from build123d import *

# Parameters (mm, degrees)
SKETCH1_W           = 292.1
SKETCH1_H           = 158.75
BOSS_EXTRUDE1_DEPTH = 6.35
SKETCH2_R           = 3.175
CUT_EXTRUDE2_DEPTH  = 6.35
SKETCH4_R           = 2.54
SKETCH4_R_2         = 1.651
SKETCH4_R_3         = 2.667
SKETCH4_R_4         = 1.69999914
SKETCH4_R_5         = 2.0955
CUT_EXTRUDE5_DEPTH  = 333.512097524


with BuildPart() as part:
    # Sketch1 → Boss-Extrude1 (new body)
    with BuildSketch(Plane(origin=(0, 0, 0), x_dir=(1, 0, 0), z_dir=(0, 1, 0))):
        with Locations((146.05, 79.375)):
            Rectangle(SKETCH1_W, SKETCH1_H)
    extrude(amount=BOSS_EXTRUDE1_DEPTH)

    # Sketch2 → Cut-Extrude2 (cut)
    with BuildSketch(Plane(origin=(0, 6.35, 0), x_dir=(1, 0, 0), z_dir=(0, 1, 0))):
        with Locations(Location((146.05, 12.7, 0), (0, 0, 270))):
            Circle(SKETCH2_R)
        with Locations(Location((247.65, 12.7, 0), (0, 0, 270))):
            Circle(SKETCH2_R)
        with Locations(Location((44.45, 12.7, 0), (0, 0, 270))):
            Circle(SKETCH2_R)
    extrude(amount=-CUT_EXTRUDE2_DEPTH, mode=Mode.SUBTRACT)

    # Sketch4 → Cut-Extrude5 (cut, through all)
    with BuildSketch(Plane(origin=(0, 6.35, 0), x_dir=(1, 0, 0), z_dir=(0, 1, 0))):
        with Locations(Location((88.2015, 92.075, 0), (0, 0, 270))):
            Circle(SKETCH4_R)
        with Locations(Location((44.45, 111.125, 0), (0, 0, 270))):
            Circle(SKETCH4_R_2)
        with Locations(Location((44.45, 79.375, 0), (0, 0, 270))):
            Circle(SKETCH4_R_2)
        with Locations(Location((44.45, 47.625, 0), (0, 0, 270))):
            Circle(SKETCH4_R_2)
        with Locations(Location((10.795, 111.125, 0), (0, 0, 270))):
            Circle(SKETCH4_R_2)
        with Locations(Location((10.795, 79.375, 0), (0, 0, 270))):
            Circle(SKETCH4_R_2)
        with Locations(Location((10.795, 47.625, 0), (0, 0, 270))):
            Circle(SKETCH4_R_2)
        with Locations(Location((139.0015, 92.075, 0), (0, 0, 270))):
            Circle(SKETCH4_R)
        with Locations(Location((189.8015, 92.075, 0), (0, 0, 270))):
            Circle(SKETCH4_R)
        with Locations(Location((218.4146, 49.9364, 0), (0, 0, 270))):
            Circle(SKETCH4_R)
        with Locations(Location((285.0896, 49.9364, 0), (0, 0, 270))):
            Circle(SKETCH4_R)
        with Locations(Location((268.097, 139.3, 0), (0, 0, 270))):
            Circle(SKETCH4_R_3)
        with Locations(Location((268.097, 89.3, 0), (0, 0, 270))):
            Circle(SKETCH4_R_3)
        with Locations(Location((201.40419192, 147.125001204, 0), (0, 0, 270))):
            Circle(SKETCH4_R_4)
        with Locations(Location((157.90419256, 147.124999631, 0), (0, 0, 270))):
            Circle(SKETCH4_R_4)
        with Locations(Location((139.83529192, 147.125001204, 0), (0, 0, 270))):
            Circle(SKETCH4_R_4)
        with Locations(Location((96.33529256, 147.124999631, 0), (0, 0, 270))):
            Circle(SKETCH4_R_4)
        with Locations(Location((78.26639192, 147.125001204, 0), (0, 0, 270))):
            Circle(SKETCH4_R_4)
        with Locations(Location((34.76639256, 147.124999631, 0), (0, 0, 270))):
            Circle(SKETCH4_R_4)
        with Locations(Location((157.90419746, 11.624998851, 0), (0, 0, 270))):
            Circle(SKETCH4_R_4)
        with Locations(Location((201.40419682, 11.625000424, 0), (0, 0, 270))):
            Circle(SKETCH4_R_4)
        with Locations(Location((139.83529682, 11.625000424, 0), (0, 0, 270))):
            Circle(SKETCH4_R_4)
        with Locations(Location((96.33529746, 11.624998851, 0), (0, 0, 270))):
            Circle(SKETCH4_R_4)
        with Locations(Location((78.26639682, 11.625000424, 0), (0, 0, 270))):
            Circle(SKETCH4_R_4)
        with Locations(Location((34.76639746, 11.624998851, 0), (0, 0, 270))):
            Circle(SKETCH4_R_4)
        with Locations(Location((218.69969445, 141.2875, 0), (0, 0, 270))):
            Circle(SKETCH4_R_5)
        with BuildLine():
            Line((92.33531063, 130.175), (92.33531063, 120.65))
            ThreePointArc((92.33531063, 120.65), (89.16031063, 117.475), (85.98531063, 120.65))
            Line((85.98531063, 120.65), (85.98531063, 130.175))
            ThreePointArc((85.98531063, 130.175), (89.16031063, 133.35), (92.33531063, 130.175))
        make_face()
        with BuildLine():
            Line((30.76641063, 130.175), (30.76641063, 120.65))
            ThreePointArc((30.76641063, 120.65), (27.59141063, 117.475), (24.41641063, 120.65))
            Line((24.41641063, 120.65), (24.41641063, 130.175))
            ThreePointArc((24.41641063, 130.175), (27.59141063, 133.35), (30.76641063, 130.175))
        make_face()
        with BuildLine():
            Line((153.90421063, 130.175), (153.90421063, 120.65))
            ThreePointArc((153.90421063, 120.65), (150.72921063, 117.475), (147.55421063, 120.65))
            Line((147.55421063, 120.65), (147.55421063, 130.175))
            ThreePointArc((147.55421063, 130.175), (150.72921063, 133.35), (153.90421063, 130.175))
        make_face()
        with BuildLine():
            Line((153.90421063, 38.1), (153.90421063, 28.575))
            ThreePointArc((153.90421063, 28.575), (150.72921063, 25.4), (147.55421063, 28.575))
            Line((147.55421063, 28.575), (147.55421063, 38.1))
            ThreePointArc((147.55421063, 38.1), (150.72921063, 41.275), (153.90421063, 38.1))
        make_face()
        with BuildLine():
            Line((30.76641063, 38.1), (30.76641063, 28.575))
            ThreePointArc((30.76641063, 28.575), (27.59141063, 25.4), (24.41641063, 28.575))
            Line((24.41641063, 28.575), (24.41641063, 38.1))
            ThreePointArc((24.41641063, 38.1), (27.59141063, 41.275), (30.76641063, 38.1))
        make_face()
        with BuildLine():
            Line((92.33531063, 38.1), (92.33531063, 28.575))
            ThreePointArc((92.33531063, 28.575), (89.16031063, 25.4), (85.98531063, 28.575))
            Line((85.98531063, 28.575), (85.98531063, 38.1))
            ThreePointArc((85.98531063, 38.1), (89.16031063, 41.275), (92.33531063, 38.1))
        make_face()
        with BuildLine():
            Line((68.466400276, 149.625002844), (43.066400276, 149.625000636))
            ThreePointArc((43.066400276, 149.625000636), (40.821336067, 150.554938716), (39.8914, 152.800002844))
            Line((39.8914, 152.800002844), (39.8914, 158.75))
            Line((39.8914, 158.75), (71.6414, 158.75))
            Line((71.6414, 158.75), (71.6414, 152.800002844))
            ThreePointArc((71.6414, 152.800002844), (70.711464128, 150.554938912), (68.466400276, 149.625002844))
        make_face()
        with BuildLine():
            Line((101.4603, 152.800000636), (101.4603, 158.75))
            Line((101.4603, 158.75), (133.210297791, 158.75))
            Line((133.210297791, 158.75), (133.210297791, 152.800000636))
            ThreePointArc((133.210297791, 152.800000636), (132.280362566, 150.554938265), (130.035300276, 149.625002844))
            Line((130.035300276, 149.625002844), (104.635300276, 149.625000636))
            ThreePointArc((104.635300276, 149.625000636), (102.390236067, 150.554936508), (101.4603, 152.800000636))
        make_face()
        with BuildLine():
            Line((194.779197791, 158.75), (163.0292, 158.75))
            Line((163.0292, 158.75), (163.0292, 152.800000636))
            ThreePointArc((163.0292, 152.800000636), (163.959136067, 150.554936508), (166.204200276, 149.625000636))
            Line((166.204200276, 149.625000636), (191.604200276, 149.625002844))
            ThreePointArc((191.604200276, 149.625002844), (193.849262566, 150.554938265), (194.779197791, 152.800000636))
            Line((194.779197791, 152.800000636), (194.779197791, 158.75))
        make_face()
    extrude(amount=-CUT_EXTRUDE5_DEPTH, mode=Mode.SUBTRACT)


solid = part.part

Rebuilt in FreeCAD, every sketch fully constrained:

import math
import FreeCAD as App
import Part
import Sketcher
Q = App.Units.Quantity


def add_polygon(sketch, points):
    """Adds a closed chain of lines whose ends are joined by coincident constraints."""
    first, n = sketch.GeometryCount, len(points)
    for a, b in zip(points, points[1:] + points[:1]):
        sketch.addGeometry(Part.LineSegment(App.Vector(*a, 0), App.Vector(*b, 0)), False)
    for i in range(n):
        sketch.addConstraint(Sketcher.Constraint("Coincident", first + i, 2, first + (i + 1) % n, 1))

doc = App.newDocument("Part")
body = doc.addObject("PartDesign::Body", "Body")

sketch1 = body.newObject("Sketcher::SketchObject", "Sketch")
sketch1.AttachmentSupport = (doc.getObject("XZ_Plane"), [""])
sketch1.MapMode = "FlatFace"
add_polygon(sketch1, [(0, -158.75), (0, 0), (292.1, 0), (292.1, -158.75)])
sketch1.addConstraint(Sketcher.Constraint("Vertical", 0))
sketch1.addConstraint(Sketcher.Constraint("Horizontal", 1))
sketch1.addConstraint(Sketcher.Constraint("Vertical", 2))
sketch1.addConstraint(Sketcher.Constraint("Horizontal", 3))
sketch1.addConstraint(Sketcher.Constraint("Coincident", 0, 2, -1, 1))
sketch1.addConstraint(Sketcher.Constraint("DistanceX", 1, 1, 1, 2, Q("11.5 in")))
sketch1.addConstraint(Sketcher.Constraint("DistanceY", 0, 1, 0, 2, Q("6.25 in")))
pad1 = body.newObject("PartDesign::Pad", "Pad")
pad1.Profile = sketch1
pad1.Length = Q("0.25 in")
pad1.Reversed = True

sketch2 = body.newObject("Sketcher::SketchObject", "Sketch001")
sketch2.AttachmentSupport = (doc.getObject("XZ_Plane"), [""])
sketch2.MapMode = "FlatFace"
sketch2.AttachmentOffset = App.Placement(App.Vector(0, 0, -0.25 * 25.4), App.Rotation())
sketch2.addGeometry(Part.Circle(App.Vector(146.05, -12.7, 0), App.Vector(0, 0, 1), 3.175), False)
sketch2.addGeometry(Part.Circle(App.Vector(247.65, -12.7, 0), App.Vector(0, 0, 1), 3.175), False)
sketch2.addGeometry(Part.Circle(App.Vector(44.45, -12.7, 0), App.Vector(0, 0, 1), 3.175), False)
sketch2.addConstraint(Sketcher.Constraint("Equal", 0, 1))
sketch2.addConstraint(Sketcher.Constraint("Equal", 1, 2))
sketch2.addConstraint(Sketcher.Constraint("Horizontal", 0, 3, 1, 3))
sketch2.addConstraint(Sketcher.Constraint("Horizontal", 1, 3, 2, 3))
sketch2.addConstraint(Sketcher.Constraint("Diameter", 0, Q("0.25 in")))
sketch2.addConstraint(Sketcher.Constraint("DistanceX", 0, 3, 1, 3, Q("4 in")))
sketch2.addConstraint(Sketcher.Constraint("DistanceX", 2, 3, 0, 3, Q("4 in")))
sketch2.addConstraint(Sketcher.Constraint("DistanceY", 0, 3, -1, 1, Q("0.5 in")))
sketch2.addConstraint(Sketcher.Constraint("DistanceX", -1, 1, 0, 3, Q("5.75 in")))
pocket1 = body.newObject("PartDesign::Pocket", "Pocket")
pocket1.Profile = sketch2
pocket1.Length = Q("0.25 in")
pocket1.Reversed = True

sketch3 = body.newObject("Sketcher::SketchObject", "Sketch002")
sketch3.AttachmentSupport = (doc.getObject("XZ_Plane"), [""])
sketch3.MapMode = "FlatFace"
sketch3.AttachmentOffset = App.Placement(App.Vector(0, 0, -0.25 * 25.4), App.Rotation())
sketch3.addGeometry(Part.Circle(App.Vector(88.2015, -92.075, 0), App.Vector(0, 0, 1), 2.54), False)
sketch3.addGeometry(Part.Circle(App.Vector(44.45, -111.125, 0), App.Vector(0, 0, 1), 1.651), False)
sketch3.addGeometry(Part.Circle(App.Vector(44.45, -79.375, 0), App.Vector(0, 0, 1), 1.651), False)
sketch3.addGeometry(Part.Circle(App.Vector(44.45, -47.625, 0), App.Vector(0, 0, 1), 1.651), False)
sketch3.addGeometry(Part.Circle(App.Vector(10.795, -111.125, 0), App.Vector(0, 0, 1), 1.651), False)
sketch3.addGeometry(Part.Circle(App.Vector(10.795, -79.375, 0), App.Vector(0, 0, 1), 1.651), False)
sketch3.addGeometry(Part.Circle(App.Vector(10.795, -47.625, 0), App.Vector(0, 0, 1), 1.651), False)
sketch3.addGeometry(Part.Circle(App.Vector(139.0015, -92.075, 0), App.Vector(0, 0, 1), 2.54), False)
sketch3.addGeometry(Part.Circle(App.Vector(189.8015, -92.075, 0), App.Vector(0, 0, 1), 2.54), False)
sketch3.addGeometry(Part.Circle(App.Vector(218.4146, -49.9364, 0), App.Vector(0, 0, 1), 2.54), False)
sketch3.addGeometry(Part.Circle(App.Vector(285.0896, -49.9364, 0), App.Vector(0, 0, 1), 2.54), False)
sketch3.addGeometry(Part.Circle(App.Vector(268.097, -139.3, 0), App.Vector(0, 0, 1), 2.667), False)
sketch3.addGeometry(Part.Circle(App.Vector(268.097, -89.3, 0), App.Vector(0, 0, 1), 2.667), False)
sketch3.addGeometry(Part.Circle(App.Vector(201.404192, -147.125001, 0), App.Vector(0, 0, 1), 1.699999), False)
sketch3.addGeometry(Part.Circle(App.Vector(157.904193, -147.125, 0), App.Vector(0, 0, 1), 1.699999), False)
sketch3.addGeometry(Part.Circle(App.Vector(139.835292, -147.125001, 0), App.Vector(0, 0, 1), 1.699999), False)
sketch3.addGeometry(Part.Circle(App.Vector(96.335293, -147.125, 0), App.Vector(0, 0, 1), 1.699999), False)
sketch3.addGeometry(Part.Circle(App.Vector(78.266392, -147.125001, 0), App.Vector(0, 0, 1), 1.699999), False)
sketch3.addGeometry(Part.Circle(App.Vector(34.766393, -147.125, 0), App.Vector(0, 0, 1), 1.699999), False)
sketch3.addGeometry(Part.Circle(App.Vector(157.904197, -11.624999, 0), App.Vector(0, 0, 1), 1.699999), False)
sketch3.addGeometry(Part.Circle(App.Vector(201.404197, -11.625, 0), App.Vector(0, 0, 1), 1.699999), False)
sketch3.addGeometry(Part.Circle(App.Vector(139.835297, -11.625, 0), App.Vector(0, 0, 1), 1.699999), False)
sketch3.addGeometry(Part.Circle(App.Vector(96.335297, -11.624999, 0), App.Vector(0, 0, 1), 1.699999), False)
sketch3.addGeometry(Part.Circle(App.Vector(78.266397, -11.625, 0), App.Vector(0, 0, 1), 1.699999), False)
sketch3.addGeometry(Part.Circle(App.Vector(34.766397, -11.624999, 0), App.Vector(0, 0, 1), 1.699999), False)
sketch3.addGeometry(Part.Circle(App.Vector(218.699694, -141.2875, 0), App.Vector(0, 0, 1), 2.0955), False)
sketch3.addGeometry(Part.LineSegment(App.Vector(92.335311, -120.65, 0), App.Vector(92.335311, -130.175, 0)), False)
sketch3.addGeometry(Part.ArcOfCircle(Part.Circle(App.Vector(89.160311, -130.175, 0), App.Vector(0, 0, 1), 3.175), math.radians(180), math.radians(360)), False)
sketch3.addGeometry(Part.LineSegment(App.Vector(85.985311, -130.175, 0), App.Vector(85.985311, -120.65, 0)), False)
sketch3.addGeometry(Part.ArcOfCircle(Part.Circle(App.Vector(89.160311, -120.65, 0), App.Vector(0, 0, 1), 3.175), math.radians(0), math.radians(180)), False)
sketch3.addGeometry(Part.LineSegment(App.Vector(30.766411, -120.65, 0), App.Vector(30.766411, -130.175, 0)), False)
sketch3.addGeometry(Part.ArcOfCircle(Part.Circle(App.Vector(27.591411, -130.175, 0), App.Vector(0, 0, 1), 3.175), math.radians(180), math.radians(360)), False)
sketch3.addGeometry(Part.LineSegment(App.Vector(24.416411, -130.175, 0), App.Vector(24.416411, -120.65, 0)), False)
sketch3.addGeometry(Part.ArcOfCircle(Part.Circle(App.Vector(27.591411, -120.65, 0), App.Vector(0, 0, 1), 3.175), math.radians(0), math.radians(180)), False)
sketch3.addGeometry(Part.LineSegment(App.Vector(153.904211, -120.65, 0), App.Vector(153.904211, -130.175, 0)), False)
sketch3.addGeometry(Part.ArcOfCircle(Part.Circle(App.Vector(150.729211, -130.175, 0), App.Vector(0, 0, 1), 3.175), math.radians(180), math.radians(360)), False)
sketch3.addGeometry(Part.LineSegment(App.Vector(147.554211, -130.175, 0), App.Vector(147.554211, -120.65, 0)), False)
sketch3.addGeometry(Part.ArcOfCircle(Part.Circle(App.Vector(150.729211, -120.65, 0), App.Vector(0, 0, 1), 3.175), math.radians(0), math.radians(180)), False)
sketch3.addGeometry(Part.LineSegment(App.Vector(153.904211, -28.575, 0), App.Vector(153.904211, -38.1, 0)), False)
sketch3.addGeometry(Part.ArcOfCircle(Part.Circle(App.Vector(150.729211, -38.1, 0), App.Vector(0, 0, 1), 3.175), math.radians(180), math.radians(360)), False)
sketch3.addGeometry(Part.LineSegment(App.Vector(147.554211, -38.1, 0), App.Vector(147.554211, -28.575, 0)), False)
sketch3.addGeometry(Part.ArcOfCircle(Part.Circle(App.Vector(150.729211, -28.575, 0), App.Vector(0, 0, 1), 3.175), math.radians(0), math.radians(180)), False)
sketch3.addGeometry(Part.LineSegment(App.Vector(30.766411, -28.575, 0), App.Vector(30.766411, -38.1, 0)), False)
sketch3.addGeometry(Part.ArcOfCircle(Part.Circle(App.Vector(27.591411, -38.1, 0), App.Vector(0, 0, 1), 3.175), math.radians(180), math.radians(360)), False)
sketch3.addGeometry(Part.LineSegment(App.Vector(24.416411, -38.1, 0), App.Vector(24.416411, -28.575, 0)), False)
sketch3.addGeometry(Part.ArcOfCircle(Part.Circle(App.Vector(27.591411, -28.575, 0), App.Vector(0, 0, 1), 3.175), math.radians(0), math.radians(180)), False)
sketch3.addGeometry(Part.LineSegment(App.Vector(92.335311, -28.575, 0), App.Vector(92.335311, -38.1, 0)), False)
sketch3.addGeometry(Part.ArcOfCircle(Part.Circle(App.Vector(89.160311, -38.1, 0), App.Vector(0, 0, 1), 3.175), math.radians(180), math.radians(360)), False)
sketch3.addGeometry(Part.LineSegment(App.Vector(85.985311, -38.1, 0), App.Vector(85.985311, -28.575, 0)), False)
sketch3.addGeometry(Part.ArcOfCircle(Part.Circle(App.Vector(89.160311, -28.575, 0), App.Vector(0, 0, 1), 3.175), math.radians(0), math.radians(180)), False)
sketch3.addGeometry(Part.LineSegment(App.Vector(43.0664, -149.625001, 0), App.Vector(68.4664, -149.625003, 0)), False)
sketch3.addGeometry(Part.ArcOfCircle(Part.Circle(App.Vector(68.4664, -152.800003, 0), App.Vector(0, 0, 1), 3.175), math.radians(0), math.radians(89.999995)), False)
sketch3.addGeometry(Part.LineSegment(App.Vector(71.6414, -152.800003, 0), App.Vector(71.6414, -158.75, 0)), False)
sketch3.addGeometry(Part.LineSegment(App.Vector(71.6414, -158.75, 0), App.Vector(39.8914, -158.75, 0)), False)
sketch3.addGeometry(Part.LineSegment(App.Vector(39.8914, -158.75, 0), App.Vector(39.8914, -152.800003, 0)), False)
sketch3.addGeometry(Part.ArcOfCircle(Part.Circle(App.Vector(43.066404, -152.800004, 0), App.Vector(0, 0, 1), 3.175004), math.radians(90.000063), math.radians(179.999972)), False)
sketch3.addGeometry(Part.LineSegment(App.Vector(101.4603, -158.75, 0), App.Vector(101.4603, -152.800001, 0)), False)
sketch3.addGeometry(Part.ArcOfCircle(Part.Circle(App.Vector(104.6353, -152.800001, 0), App.Vector(0, 0, 1), 3.175), math.radians(89.999995), math.radians(180)), False)
sketch3.addGeometry(Part.LineSegment(App.Vector(104.6353, -149.625001, 0), App.Vector(130.0353, -149.625003, 0)), False)
sketch3.addGeometry(Part.ArcOfCircle(Part.Circle(App.Vector(130.0353, -152.800001, 0), App.Vector(0, 0, 1), 3.174998), math.radians(0), math.radians(89.999995)), False)
sketch3.addGeometry(Part.LineSegment(App.Vector(133.210298, -152.800001, 0), App.Vector(133.210298, -158.75, 0)), False)
sketch3.addGeometry(Part.LineSegment(App.Vector(133.210298, -158.75, 0), App.Vector(101.4603, -158.75, 0)), False)
sketch3.addGeometry(Part.LineSegment(App.Vector(194.779198, -158.75, 0), App.Vector(163.0292, -158.75, 0)), False)
sketch3.addGeometry(Part.LineSegment(App.Vector(163.0292, -158.75, 0), App.Vector(163.0292, -152.800001, 0)), False)
sketch3.addGeometry(Part.ArcOfCircle(Part.Circle(App.Vector(166.2042, -152.800001, 0), App.Vector(0, 0, 1), 3.175), math.radians(89.999995), math.radians(180)), False)
sketch3.addGeometry(Part.LineSegment(App.Vector(166.2042, -149.625001, 0), App.Vector(191.6042, -149.625003, 0)), False)
sketch3.addGeometry(Part.ArcOfCircle(Part.Circle(App.Vector(191.6042, -152.800001, 0), App.Vector(0, 0, 1), 3.174998), math.radians(0), math.radians(89.999995)), False)
sketch3.addGeometry(Part.LineSegment(App.Vector(194.779198, -152.800001, 0), App.Vector(194.779198, -158.75, 0)), False)
sketch3.addConstraint(Sketcher.Constraint("Tangent", 26, 2, 27, 2))
sketch3.addConstraint(Sketcher.Constraint("Tangent", 27, 1, 28, 1))
sketch3.addConstraint(Sketcher.Constraint("Tangent", 28, 2, 29, 2))
sketch3.addConstraint(Sketcher.Constraint("Tangent", 29, 1, 26, 1))
sketch3.addConstraint(Sketcher.Constraint("Tangent", 30, 2, 31, 2))
sketch3.addConstraint(Sketcher.Constraint("Tangent", 31, 1, 32, 1))
sketch3.addConstraint(Sketcher.Constraint("Tangent", 32, 2, 33, 2))
sketch3.addConstraint(Sketcher.Constraint("Tangent", 33, 1, 30, 1))
sketch3.addConstraint(Sketcher.Constraint("Tangent", 34, 2, 35, 2))
sketch3.addConstraint(Sketcher.Constraint("Tangent", 35, 1, 36, 1))
sketch3.addConstraint(Sketcher.Constraint("Tangent", 36, 2, 37, 2))
sketch3.addConstraint(Sketcher.Constraint("Tangent", 37, 1, 34, 1))
sketch3.addConstraint(Sketcher.Constraint("Tangent", 38, 2, 39, 2))
sketch3.addConstraint(Sketcher.Constraint("Tangent", 39, 1, 40, 1))
sketch3.addConstraint(Sketcher.Constraint("Tangent", 40, 2, 41, 2))
sketch3.addConstraint(Sketcher.Constraint("Tangent", 41, 1, 38, 1))
sketch3.addConstraint(Sketcher.Constraint("Tangent", 42, 2, 43, 2))
sketch3.addConstraint(Sketcher.Constraint("Tangent", 43, 1, 44, 1))
sketch3.addConstraint(Sketcher.Constraint("Tangent", 44, 2, 45, 2))
sketch3.addConstraint(Sketcher.Constraint("Tangent", 45, 1, 42, 1))
sketch3.addConstraint(Sketcher.Constraint("Tangent", 46, 2, 47, 2))
sketch3.addConstraint(Sketcher.Constraint("Tangent", 47, 1, 48, 1))
sketch3.addConstraint(Sketcher.Constraint("Tangent", 48, 2, 49, 2))
sketch3.addConstraint(Sketcher.Constraint("Tangent", 49, 1, 46, 1))
sketch3.addConstraint(Sketcher.Constraint("Tangent", 50, 2, 51, 2))
sketch3.addConstraint(Sketcher.Constraint("Tangent", 51, 1, 52, 1))
sketch3.addConstraint(Sketcher.Constraint("Coincident", 52, 2, 53, 1))
sketch3.addConstraint(Sketcher.Constraint("Coincident", 53, 2, 54, 1))
sketch3.addConstraint(Sketcher.Constraint("Tangent", 54, 2, 55, 2))
sketch3.addConstraint(Sketcher.Constraint("Tangent", 55, 1, 50, 1))
sketch3.addConstraint(Sketcher.Constraint("Tangent", 56, 2, 57, 2))
sketch3.addConstraint(Sketcher.Constraint("Tangent", 57, 1, 58, 1))
sketch3.addConstraint(Sketcher.Constraint("Tangent", 58, 2, 59, 2))
sketch3.addConstraint(Sketcher.Constraint("Tangent", 59, 1, 60, 1))
sketch3.addConstraint(Sketcher.Constraint("Coincident", 60, 2, 61, 1))
sketch3.addConstraint(Sketcher.Constraint("Coincident", 61, 2, 56, 1))
sketch3.addConstraint(Sketcher.Constraint("Coincident", 62, 2, 63, 1))
sketch3.addConstraint(Sketcher.Constraint("Tangent", 63, 2, 64, 2))
sketch3.addConstraint(Sketcher.Constraint("Tangent", 64, 1, 65, 1))
sketch3.addConstraint(Sketcher.Constraint("Tangent", 65, 2, 66, 2))
sketch3.addConstraint(Sketcher.Constraint("Tangent", 66, 1, 67, 1))
sketch3.addConstraint(Sketcher.Constraint("Coincident", 67, 2, 62, 1))
sketch3.addConstraint(Sketcher.Constraint("Vertical", 26))
sketch3.addConstraint(Sketcher.Constraint("Vertical", 28))
sketch3.addConstraint(Sketcher.Constraint("Vertical", 30))
sketch3.addConstraint(Sketcher.Constraint("Vertical", 32))
sketch3.addConstraint(Sketcher.Constraint("Vertical", 34))
sketch3.addConstraint(Sketcher.Constraint("Vertical", 36))
sketch3.addConstraint(Sketcher.Constraint("Vertical", 38))
sketch3.addConstraint(Sketcher.Constraint("Vertical", 40))
sketch3.addConstraint(Sketcher.Constraint("Vertical", 42))
sketch3.addConstraint(Sketcher.Constraint("Vertical", 44))
sketch3.addConstraint(Sketcher.Constraint("Vertical", 46))
sketch3.addConstraint(Sketcher.Constraint("Vertical", 48))
sketch3.addConstraint(Sketcher.Constraint("Vertical", 52))
sketch3.addConstraint(Sketcher.Constraint("Horizontal", 53))
sketch3.addConstraint(Sketcher.Constraint("Vertical", 54))
sketch3.addConstraint(Sketcher.Constraint("Vertical", 56))
sketch3.addConstraint(Sketcher.Constraint("Vertical", 60))
sketch3.addConstraint(Sketcher.Constraint("Horizontal", 61))
sketch3.addConstraint(Sketcher.Constraint("Horizontal", 62))
sketch3.addConstraint(Sketcher.Constraint("Vertical", 63))
sketch3.addConstraint(Sketcher.Constraint("Vertical", 67))
sketch3.addConstraint(Sketcher.Constraint("Equal", 1, 2))
sketch3.addConstraint(Sketcher.Constraint("Equal", 2, 3))
sketch3.addConstraint(Sketcher.Constraint("Equal", 3, 4))
sketch3.addConstraint(Sketcher.Constraint("Equal", 4, 5))
sketch3.addConstraint(Sketcher.Constraint("Equal", 5, 6))
sketch3.addConstraint(Sketcher.Constraint("Equal", 0, 7))
sketch3.addConstraint(Sketcher.Constraint("Equal", 7, 8))
sketch3.addConstraint(Sketcher.Constraint("Equal", 8, 9))
sketch3.addConstraint(Sketcher.Constraint("Equal", 9, 10))
sketch3.addConstraint(Sketcher.Constraint("Equal", 11, 12))
sketch3.addConstraint(Sketcher.Constraint("Equal", 13, 14))
sketch3.addConstraint(Sketcher.Constraint("Equal", 14, 15))
sketch3.addConstraint(Sketcher.Constraint("Equal", 15, 16))
sketch3.addConstraint(Sketcher.Constraint("Equal", 16, 17))
sketch3.addConstraint(Sketcher.Constraint("Equal", 17, 18))
sketch3.addConstraint(Sketcher.Constraint("Equal", 18, 19))
sketch3.addConstraint(Sketcher.Constraint("Equal", 19, 20))
sketch3.addConstraint(Sketcher.Constraint("Equal", 20, 21))
sketch3.addConstraint(Sketcher.Constraint("Equal", 21, 22))
sketch3.addConstraint(Sketcher.Constraint("Equal", 22, 23))
sketch3.addConstraint(Sketcher.Constraint("Equal", 23, 24))
sketch3.addConstraint(Sketcher.Constraint("Equal", 29, 31))
sketch3.addConstraint(Sketcher.Constraint("Equal", 33, 35))
sketch3.addConstraint(Sketcher.Constraint("Equal", 37, 39))
sketch3.addConstraint(Sketcher.Constraint("Equal", 41, 43))
sketch3.addConstraint(Sketcher.Constraint("Equal", 45, 47))
sketch3.addConstraint(Sketcher.Constraint("Equal", 49, 51))
sketch3.addConstraint(Sketcher.Constraint("Equal", 51, 57))
sketch3.addConstraint(Sketcher.Constraint("Equal", 57, 64))
sketch3.addConstraint(Sketcher.Constraint("Equal", 59, 66))
sketch3.addConstraint(Sketcher.Constraint("Parallel", 50, 58))
sketch3.addConstraint(Sketcher.Constraint("Parallel", 58, 65))
sketch3.addConstraint(Sketcher.Constraint("Horizontal", 1, 3, 4, 3))
sketch3.addConstraint(Sketcher.Constraint("Horizontal", 2, 3, 5, 3))
sketch3.addConstraint(Sketcher.Constraint("Horizontal", 3, 3, 6, 3))
sketch3.addConstraint(Sketcher.Constraint("Horizontal", 0, 3, 7, 3))
sketch3.addConstraint(Sketcher.Constraint("Horizontal", 7, 3, 8, 3))
sketch3.addConstraint(Sketcher.Constraint("Horizontal", 9, 3, 10, 3))
sketch3.addConstraint(Sketcher.Constraint("Horizontal", 13, 3, 14, 3))
sketch3.addConstraint(Sketcher.Constraint("Horizontal", 14, 3, 15, 3))
sketch3.addConstraint(Sketcher.Constraint("Horizontal", 15, 3, 16, 3))
sketch3.addConstraint(Sketcher.Constraint("Horizontal", 16, 3, 17, 3))
sketch3.addConstraint(Sketcher.Constraint("Horizontal", 17, 3, 18, 3))
sketch3.addConstraint(Sketcher.Constraint("Horizontal", 19, 3, 20, 3))
sketch3.addConstraint(Sketcher.Constraint("Horizontal", 20, 3, 21, 3))
sketch3.addConstraint(Sketcher.Constraint("Horizontal", 21, 3, 22, 3))
sketch3.addConstraint(Sketcher.Constraint("Horizontal", 22, 3, 23, 3))
sketch3.addConstraint(Sketcher.Constraint("Horizontal", 23, 3, 24, 3))
sketch3.addConstraint(Sketcher.Constraint("Horizontal", 27, 3, 31, 3))
sketch3.addConstraint(Sketcher.Constraint("Horizontal", 29, 3, 33, 3))
sketch3.addConstraint(Sketcher.Constraint("Horizontal", 31, 3, 35, 3))
sketch3.addConstraint(Sketcher.Constraint("Horizontal", 33, 3, 37, 3))
sketch3.addConstraint(Sketcher.Constraint("Horizontal", 39, 3, 43, 3))
sketch3.addConstraint(Sketcher.Constraint("Horizontal", 41, 3, 45, 3))
sketch3.addConstraint(Sketcher.Constraint("Horizontal", 43, 3, 47, 3))
sketch3.addConstraint(Sketcher.Constraint("Horizontal", 45, 3, 49, 3))
sketch3.addConstraint(Sketcher.Constraint("Horizontal", 51, 3, 55, 3))
sketch3.addConstraint(Sketcher.Constraint("Horizontal", 57, 3, 59, 3))
sketch3.addConstraint(Sketcher.Constraint("Horizontal", 59, 3, 64, 3))
sketch3.addConstraint(Sketcher.Constraint("Horizontal", 55, 1, 57, 1))
sketch3.addConstraint(Sketcher.Constraint("Horizontal", 53, 2, 60, 2))
sketch3.addConstraint(Sketcher.Constraint("Horizontal", 61, 2, 62, 2))
sketch3.addConstraint(Sketcher.Constraint("Vertical", 1, 3, 2, 3))
sketch3.addConstraint(Sketcher.Constraint("Vertical", 2, 3, 3, 3))
sketch3.addConstraint(Sketcher.Constraint("Vertical", 4, 3, 5, 3))
sketch3.addConstraint(Sketcher.Constraint("Vertical", 5, 3, 6, 3))
sketch3.addConstraint(Sketcher.Constraint("Vertical", 11, 3, 12, 3))
sketch3.addConstraint(Sketcher.Constraint("Vertical", 37, 3, 39, 3))
sketch3.addConstraint(Sketcher.Constraint("Vertical", 33, 3, 43, 3))
sketch3.addConstraint(Sketcher.Constraint("Vertical", 29, 3, 47, 3))
sketch3.addConstraint(Sketcher.Constraint("Vertical", 51, 3, 50, 2))
sketch3.addConstraint(Sketcher.Constraint("Equal", 61, 62))
sketch3.addConstraint(Sketcher.Constraint("Equal", 36, 38))
sketch3.addConstraint(Sketcher.Constraint("Equal", 50, 58))
sketch3.addConstraint(Sketcher.Constraint("Diameter", 0, Q("0.2 in")))
sketch3.addConstraint(Sketcher.Constraint("Diameter", 1, Q("0.13 in")))
sketch3.addConstraint(Sketcher.Constraint("Diameter", 11, Q("0.21 in")))
sketch3.addConstraint(Sketcher.Constraint("Distance", 50, Q("1 in")))
sketch3.addConstraint(Sketcher.Constraint("Diameter", 25, Q("0.165 in")))
sketch3.addConstraint(Sketcher.Constraint("Radius", 27, Q("0.125 in")))
sketch3.addConstraint(Sketcher.Constraint("DistanceY", 39, 3, -1, 1, Q("1.5 in")))
sketch3.addConstraint(Sketcher.Constraint("Diameter", 13, 3.399998))
sketch3.addConstraint(Sketcher.Constraint("DistanceY", 26, 2, 26, 1, Q("0.375 in")))
sketch3.addConstraint(Sketcher.Constraint("DistanceX", -1, 1, 1, 3, Q("1.75 in")))
sketch3.addConstraint(Sketcher.Constraint("DistanceY", 29, 3, -1, 1, Q("4.75 in")))
sketch3.addConstraint(Sketcher.Constraint("DistanceY", 52, 2, -1, 1, Q("6.25 in")))
sketch3.addConstraint(Sketcher.Constraint("DistanceY", 0, 3, -1, 1, Q("3.625 in")))
sketch3.addConstraint(Sketcher.Constraint("DistanceY", 1, 3, -1, 1, Q("4.375 in")))
sketch3.addConstraint(Sketcher.Constraint("DistanceY", 2, 3, -1, 1, Q("3.125 in")))
sketch3.addConstraint(Sketcher.Constraint("DistanceY", 3, 3, -1, 1, Q("1.875 in")))
sketch3.addConstraint(Sketcher.Constraint("DistanceX", -1, 1, 4, 3, Q("0.425 in")))
sketch3.addConstraint(Sketcher.Constraint("DistanceX", -1, 1, 9, 3, Q("8.599 in")))
sketch3.addConstraint(Sketcher.Constraint("DistanceY", 9, 3, -1, 1, Q("1.966 in")))
sketch3.addConstraint(Sketcher.Constraint("DistanceX", -1, 1, 10, 3, Q("11.224 in")))
sketch3.addConstraint(Sketcher.Constraint("DistanceX", -1, 1, 11, 3, Q("10.555 in")))
sketch3.addConstraint(Sketcher.Constraint("DistanceY", 25, 3, -1, 1, Q("5.5625 in")))
sketch3.addConstraint(Sketcher.Constraint("DistanceY", 56, 1, 56, 2, 5.949999))
sketch3.addConstraint(Sketcher.Constraint("DistanceX", -1, 1, 0, 3, Q("3.4725 in")))
sketch3.addConstraint(Sketcher.Constraint("DistanceX", -1, 1, 7, 3, Q("5.4725 in")))
sketch3.addConstraint(Sketcher.Constraint("DistanceX", -1, 1, 8, 3, Q("7.4725 in")))
sketch3.addConstraint(Sketcher.Constraint("DistanceX", -1, 1, 57, 3, Q("4.1195 in")))
sketch3.addConstraint(Sketcher.Constraint("DistanceY", 11, 3, -1, 1, 139.3))
sketch3.addConstraint(Sketcher.Constraint("DistanceY", 12, 3, -1, 1, 89.3))
sketch3.addConstraint(Sketcher.Constraint("DistanceY", 13, 3, -1, 1, 147.125001))
sketch3.addConstraint(Sketcher.Constraint("DistanceY", 19, 3, -1, 1, 11.624999))
sketch3.addConstraint(Sketcher.Constraint("DistanceX", -1, 1, 51, 3, 68.4664))
sketch3.addConstraint(Sketcher.Constraint("DistanceX", -1, 1, 64, 3, 166.2042))
sketch3.addConstraint(Sketcher.Constraint("DistanceX", -1, 1, 13, 3, 201.404192))
sketch3.addConstraint(Sketcher.Constraint("DistanceX", -1, 1, 15, 3, 139.835292))
sketch3.addConstraint(Sketcher.Constraint("DistanceX", -1, 1, 17, 3, 78.266392))
sketch3.addConstraint(Sketcher.Constraint("DistanceX", -1, 1, 27, 3, 89.160311))
sketch3.addConstraint(Sketcher.Constraint("DistanceX", -1, 1, 31, 3, 27.591411))
sketch3.addConstraint(Sketcher.Constraint("DistanceX", -1, 1, 35, 3, 150.729211))
sketch3.addConstraint(Sketcher.Constraint("DistanceX", -1, 1, 14, 3, 157.904193))
sketch3.addConstraint(Sketcher.Constraint("DistanceX", -1, 1, 16, 3, 96.335293))
sketch3.addConstraint(Sketcher.Constraint("DistanceX", -1, 1, 18, 3, 34.766393))
sketch3.addConstraint(Sketcher.Constraint("DistanceX", -1, 1, 19, 3, 157.904197))
sketch3.addConstraint(Sketcher.Constraint("DistanceX", -1, 1, 20, 3, 201.404197))
sketch3.addConstraint(Sketcher.Constraint("DistanceX", -1, 1, 21, 3, 139.835297))
sketch3.addConstraint(Sketcher.Constraint("DistanceX", -1, 1, 22, 3, 96.335297))
sketch3.addConstraint(Sketcher.Constraint("DistanceX", -1, 1, 23, 3, 78.266397))
sketch3.addConstraint(Sketcher.Constraint("DistanceX", -1, 1, 24, 3, 34.766397))
sketch3.addConstraint(Sketcher.Constraint("DistanceX", -1, 1, 25, 3, 218.699694))
pocket2 = body.newObject("PartDesign::Pocket", "Pocket001")
pocket2.Profile = sketch3
pocket2.Type = "ThroughAll"
pocket2.Reversed = True

doc.recompute()
